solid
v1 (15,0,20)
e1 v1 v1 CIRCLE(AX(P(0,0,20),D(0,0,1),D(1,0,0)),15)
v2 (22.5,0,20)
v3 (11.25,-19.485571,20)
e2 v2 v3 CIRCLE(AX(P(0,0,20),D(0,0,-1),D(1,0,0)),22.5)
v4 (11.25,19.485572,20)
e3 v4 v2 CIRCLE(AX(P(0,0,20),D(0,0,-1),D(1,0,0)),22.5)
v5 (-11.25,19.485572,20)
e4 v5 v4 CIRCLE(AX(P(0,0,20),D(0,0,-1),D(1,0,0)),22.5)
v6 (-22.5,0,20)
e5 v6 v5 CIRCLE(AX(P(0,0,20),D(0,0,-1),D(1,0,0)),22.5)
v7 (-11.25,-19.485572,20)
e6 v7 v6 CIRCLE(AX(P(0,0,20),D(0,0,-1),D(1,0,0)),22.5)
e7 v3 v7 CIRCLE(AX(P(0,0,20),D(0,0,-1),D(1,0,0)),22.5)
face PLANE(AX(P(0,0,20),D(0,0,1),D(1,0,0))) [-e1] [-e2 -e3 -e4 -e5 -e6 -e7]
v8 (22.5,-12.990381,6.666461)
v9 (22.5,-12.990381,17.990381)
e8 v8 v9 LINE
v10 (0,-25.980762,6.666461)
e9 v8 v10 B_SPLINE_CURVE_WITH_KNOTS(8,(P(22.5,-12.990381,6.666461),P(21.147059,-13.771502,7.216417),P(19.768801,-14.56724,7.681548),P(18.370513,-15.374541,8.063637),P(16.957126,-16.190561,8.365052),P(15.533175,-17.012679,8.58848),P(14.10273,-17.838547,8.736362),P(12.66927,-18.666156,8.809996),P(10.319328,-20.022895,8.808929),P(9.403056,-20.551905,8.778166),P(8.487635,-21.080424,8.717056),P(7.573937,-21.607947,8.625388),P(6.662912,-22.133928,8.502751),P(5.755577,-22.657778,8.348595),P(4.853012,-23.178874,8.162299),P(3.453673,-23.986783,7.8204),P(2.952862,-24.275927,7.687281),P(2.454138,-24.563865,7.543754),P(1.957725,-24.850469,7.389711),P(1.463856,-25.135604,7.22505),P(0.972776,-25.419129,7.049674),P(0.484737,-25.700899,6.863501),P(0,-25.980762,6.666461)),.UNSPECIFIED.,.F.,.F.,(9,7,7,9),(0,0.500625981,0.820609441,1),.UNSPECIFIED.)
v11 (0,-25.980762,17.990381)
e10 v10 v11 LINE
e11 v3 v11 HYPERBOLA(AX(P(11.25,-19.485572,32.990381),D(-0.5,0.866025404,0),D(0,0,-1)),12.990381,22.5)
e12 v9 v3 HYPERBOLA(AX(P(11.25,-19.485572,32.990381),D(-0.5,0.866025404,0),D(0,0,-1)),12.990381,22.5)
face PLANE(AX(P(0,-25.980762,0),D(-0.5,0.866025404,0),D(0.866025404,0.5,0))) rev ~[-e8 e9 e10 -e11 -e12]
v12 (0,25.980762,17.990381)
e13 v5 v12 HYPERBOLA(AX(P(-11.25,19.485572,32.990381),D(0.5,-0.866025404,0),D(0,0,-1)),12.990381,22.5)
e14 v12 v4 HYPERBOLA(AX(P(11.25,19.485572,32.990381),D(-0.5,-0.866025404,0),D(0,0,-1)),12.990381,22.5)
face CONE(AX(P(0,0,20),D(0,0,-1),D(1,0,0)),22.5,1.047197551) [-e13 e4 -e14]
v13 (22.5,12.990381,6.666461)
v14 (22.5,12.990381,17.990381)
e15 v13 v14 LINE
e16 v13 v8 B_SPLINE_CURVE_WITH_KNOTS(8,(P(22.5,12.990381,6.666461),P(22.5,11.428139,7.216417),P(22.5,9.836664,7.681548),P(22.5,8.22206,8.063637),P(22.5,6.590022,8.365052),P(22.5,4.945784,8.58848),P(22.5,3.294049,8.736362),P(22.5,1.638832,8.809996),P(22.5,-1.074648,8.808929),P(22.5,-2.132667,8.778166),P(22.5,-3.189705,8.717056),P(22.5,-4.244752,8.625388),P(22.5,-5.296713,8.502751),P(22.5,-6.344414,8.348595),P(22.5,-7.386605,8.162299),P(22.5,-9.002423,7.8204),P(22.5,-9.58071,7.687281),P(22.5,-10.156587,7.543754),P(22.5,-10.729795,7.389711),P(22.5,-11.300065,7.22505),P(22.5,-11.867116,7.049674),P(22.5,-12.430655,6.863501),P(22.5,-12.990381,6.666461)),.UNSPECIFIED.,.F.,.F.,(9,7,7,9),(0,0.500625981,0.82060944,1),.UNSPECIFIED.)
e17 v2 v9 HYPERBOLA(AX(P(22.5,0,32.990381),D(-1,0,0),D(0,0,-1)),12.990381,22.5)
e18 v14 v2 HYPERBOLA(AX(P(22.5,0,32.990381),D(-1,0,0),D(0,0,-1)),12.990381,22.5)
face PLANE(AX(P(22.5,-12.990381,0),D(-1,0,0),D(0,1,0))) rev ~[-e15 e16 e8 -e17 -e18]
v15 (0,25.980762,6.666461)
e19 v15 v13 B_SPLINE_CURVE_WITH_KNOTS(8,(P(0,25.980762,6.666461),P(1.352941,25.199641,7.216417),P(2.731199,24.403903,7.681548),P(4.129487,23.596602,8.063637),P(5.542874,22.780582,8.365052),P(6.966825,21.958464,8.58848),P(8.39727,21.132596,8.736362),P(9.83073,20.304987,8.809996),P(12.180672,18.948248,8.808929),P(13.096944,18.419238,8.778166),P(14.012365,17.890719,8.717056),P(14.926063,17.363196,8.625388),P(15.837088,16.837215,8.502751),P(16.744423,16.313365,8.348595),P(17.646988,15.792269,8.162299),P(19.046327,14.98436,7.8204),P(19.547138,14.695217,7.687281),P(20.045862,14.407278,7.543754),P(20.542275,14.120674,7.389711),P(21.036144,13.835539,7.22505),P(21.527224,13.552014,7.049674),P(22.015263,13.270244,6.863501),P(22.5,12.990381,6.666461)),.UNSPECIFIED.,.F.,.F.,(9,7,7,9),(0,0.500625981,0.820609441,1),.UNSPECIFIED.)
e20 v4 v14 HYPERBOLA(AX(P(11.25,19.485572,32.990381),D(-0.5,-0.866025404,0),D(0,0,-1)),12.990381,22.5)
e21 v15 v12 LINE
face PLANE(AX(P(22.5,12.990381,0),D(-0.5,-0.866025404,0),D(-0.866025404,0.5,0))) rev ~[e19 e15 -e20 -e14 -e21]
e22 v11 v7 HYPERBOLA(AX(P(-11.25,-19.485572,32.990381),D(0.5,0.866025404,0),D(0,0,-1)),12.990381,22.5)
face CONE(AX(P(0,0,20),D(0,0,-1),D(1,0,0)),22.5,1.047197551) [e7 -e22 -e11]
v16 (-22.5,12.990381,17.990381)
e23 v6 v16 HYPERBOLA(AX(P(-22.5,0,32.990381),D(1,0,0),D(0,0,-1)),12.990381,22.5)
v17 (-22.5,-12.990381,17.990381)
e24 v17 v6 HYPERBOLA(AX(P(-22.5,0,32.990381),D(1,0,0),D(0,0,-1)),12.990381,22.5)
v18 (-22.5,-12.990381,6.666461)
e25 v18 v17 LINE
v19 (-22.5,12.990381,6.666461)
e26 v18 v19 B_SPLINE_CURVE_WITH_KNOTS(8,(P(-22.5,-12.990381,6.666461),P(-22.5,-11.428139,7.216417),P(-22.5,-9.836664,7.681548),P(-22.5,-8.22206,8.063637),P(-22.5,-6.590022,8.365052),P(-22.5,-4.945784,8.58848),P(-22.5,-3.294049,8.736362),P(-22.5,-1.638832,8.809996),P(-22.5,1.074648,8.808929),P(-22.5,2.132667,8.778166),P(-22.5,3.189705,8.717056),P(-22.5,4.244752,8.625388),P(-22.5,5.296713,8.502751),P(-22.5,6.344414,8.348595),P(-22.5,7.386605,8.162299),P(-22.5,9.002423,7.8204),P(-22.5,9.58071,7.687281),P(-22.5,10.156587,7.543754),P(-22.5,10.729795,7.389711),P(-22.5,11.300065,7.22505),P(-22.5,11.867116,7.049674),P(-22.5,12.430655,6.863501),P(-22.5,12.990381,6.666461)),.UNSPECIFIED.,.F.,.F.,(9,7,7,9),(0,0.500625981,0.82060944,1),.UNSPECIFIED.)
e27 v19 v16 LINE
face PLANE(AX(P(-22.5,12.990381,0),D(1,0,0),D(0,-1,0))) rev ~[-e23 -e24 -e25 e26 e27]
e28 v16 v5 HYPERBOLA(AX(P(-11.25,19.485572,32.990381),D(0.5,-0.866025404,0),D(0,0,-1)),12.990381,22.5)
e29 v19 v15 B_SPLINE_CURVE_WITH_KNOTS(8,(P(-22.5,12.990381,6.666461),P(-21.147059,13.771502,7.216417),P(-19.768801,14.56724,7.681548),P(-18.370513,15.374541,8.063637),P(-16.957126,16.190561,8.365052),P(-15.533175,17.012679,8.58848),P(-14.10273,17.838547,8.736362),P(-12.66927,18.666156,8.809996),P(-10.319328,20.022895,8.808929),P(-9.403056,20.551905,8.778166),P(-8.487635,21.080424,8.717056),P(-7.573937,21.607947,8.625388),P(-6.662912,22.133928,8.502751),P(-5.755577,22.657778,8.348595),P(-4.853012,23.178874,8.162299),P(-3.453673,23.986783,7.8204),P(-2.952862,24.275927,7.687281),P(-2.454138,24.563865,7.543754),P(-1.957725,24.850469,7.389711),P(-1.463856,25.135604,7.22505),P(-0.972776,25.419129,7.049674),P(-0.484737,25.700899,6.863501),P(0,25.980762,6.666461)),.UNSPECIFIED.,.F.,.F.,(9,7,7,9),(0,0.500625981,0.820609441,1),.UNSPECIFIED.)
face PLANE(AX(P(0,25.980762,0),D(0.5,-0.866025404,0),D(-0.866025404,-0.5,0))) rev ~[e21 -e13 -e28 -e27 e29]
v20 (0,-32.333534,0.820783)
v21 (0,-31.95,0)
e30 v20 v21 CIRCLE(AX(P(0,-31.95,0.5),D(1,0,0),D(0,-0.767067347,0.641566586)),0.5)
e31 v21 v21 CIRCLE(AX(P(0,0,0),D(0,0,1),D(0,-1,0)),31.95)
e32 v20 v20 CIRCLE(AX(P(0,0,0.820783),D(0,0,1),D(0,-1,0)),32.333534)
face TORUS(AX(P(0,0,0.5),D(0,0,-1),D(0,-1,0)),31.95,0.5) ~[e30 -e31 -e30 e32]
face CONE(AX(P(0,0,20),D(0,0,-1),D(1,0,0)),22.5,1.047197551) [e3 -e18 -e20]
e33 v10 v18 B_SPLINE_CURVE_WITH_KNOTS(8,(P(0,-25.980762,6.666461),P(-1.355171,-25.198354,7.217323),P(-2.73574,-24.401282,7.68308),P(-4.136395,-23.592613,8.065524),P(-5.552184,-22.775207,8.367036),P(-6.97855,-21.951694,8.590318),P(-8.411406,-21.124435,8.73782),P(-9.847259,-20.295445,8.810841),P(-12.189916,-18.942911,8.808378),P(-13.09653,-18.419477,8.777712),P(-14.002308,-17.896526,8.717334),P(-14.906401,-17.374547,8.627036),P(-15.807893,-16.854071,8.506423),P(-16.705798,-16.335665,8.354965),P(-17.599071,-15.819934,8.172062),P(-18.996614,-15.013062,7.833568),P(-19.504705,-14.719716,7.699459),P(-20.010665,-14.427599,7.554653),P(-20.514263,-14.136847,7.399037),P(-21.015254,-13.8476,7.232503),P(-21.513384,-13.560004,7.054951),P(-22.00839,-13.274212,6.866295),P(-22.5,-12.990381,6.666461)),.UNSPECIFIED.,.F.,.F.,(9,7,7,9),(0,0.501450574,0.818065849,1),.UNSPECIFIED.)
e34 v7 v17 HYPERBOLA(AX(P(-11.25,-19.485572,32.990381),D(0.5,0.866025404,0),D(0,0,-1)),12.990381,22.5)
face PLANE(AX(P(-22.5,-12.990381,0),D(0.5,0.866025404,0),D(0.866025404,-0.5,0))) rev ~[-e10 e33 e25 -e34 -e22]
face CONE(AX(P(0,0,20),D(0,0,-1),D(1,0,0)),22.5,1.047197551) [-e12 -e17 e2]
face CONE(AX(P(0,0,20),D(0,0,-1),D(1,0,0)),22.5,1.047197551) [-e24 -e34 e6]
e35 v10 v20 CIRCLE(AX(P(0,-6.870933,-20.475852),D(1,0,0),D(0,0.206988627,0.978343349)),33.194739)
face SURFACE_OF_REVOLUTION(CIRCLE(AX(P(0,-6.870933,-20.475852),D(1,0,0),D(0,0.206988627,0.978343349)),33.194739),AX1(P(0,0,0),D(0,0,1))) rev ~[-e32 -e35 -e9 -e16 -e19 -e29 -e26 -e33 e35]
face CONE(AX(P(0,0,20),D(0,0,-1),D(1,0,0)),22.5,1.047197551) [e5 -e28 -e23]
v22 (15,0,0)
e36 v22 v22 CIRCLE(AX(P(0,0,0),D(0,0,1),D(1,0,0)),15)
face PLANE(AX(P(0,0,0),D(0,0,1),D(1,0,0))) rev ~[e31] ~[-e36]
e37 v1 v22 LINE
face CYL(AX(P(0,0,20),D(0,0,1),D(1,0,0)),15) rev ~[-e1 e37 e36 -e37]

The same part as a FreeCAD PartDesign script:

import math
import FreeCAD as App
import Part
import Sketcher
from FreeCAD import Vector
Q = App.Units.Quantity


def add_polygon(sketch, points):
    """Adds a closed chain of lines whose ends are joined by coincident constraints."""
    first, n = sketch.GeometryCount, len(points)
    for a, b in zip(points, points[1:] + points[:1]):
        sketch.addGeometry(Part.LineSegment(App.Vector(*a, 0), App.Vector(*b, 0)), False)
    for i in range(n):
        sketch.addConstraint(Sketcher.Constraint("Coincident", first + i, 2, first + (i + 1) % n, 1))

doc = App.newDocument("Part")
body = doc.addObject("PartDesign::Body", "Body")

# Sketch on XY plane
sketch1 = doc.addObject("Sketcher::SketchObject", "Sketch")
body.addObject(sketch1)
sketch1.AttachmentSupport = (doc.XY_Plane, [""])
sketch1.MapMode = "FlatFace"
add_polygon(sketch1, [(22.5, -12.990381), (22.5, 12.990381), (0, 25.980762), (-22.5, 12.990381), (-22.5, -12.990381), (0, -25.980762)])  # lines 0-5
sketch1.addConstraint(Sketcher.Constraint("Vertical", 0))
sketch1.addConstraint(Sketcher.Constraint("Vertical", 3))
sketch1.addConstraint(Sketcher.Constraint("Symmetric", 0, 2, 3, 2, -1, 1))
sketch1.addConstraint(Sketcher.Constraint("Symmetric", 1, 2, 4, 2, -1, 1))
sketch1.addConstraint(Sketcher.Constraint("PointOnObject", 1, 2, -2))
sketch1.addConstraint(Sketcher.Constraint("Parallel", 2, 5))
sketch1.addConstraint(Sketcher.Constraint("Horizontal", 0, 2, 2, 2))
sketch1.addConstraint(Sketcher.Constraint("Angle", 1, Q("150 deg")))
sketch1.addConstraint(Sketcher.Constraint("DistanceX", 2, 2, 0, 2, 45.0))
sketch1.addConstraint(Sketcher.Constraint("DistanceY", 0, 1, 0, 2, 25.980762))
pad1 = doc.addObject("PartDesign::Pad", "Pad")
body.addObject(pad1)
pad1.Profile = sketch1
pad1.Length = 20

# Sketch on YZ plane
sketch2 = doc.addObject("Sketcher::SketchObject", "Sketch001")
body.addObject(sketch2)
sketch2.AttachmentSupport = (doc.YZ_Plane, [""])
sketch2.MapMode = "FlatFace"
sketch2.addGeometry(Part.LineSegment(Vector(0, 0, 0), Vector(0, 12, 0)), False)
sketch2.addGeometry(Part.ArcOfCircle(Part.Circle(Vector(-6.870933, -20.475852, 0), Vector(0, 0, 1), 33.194739), math.radians(78.054064), math.radians(140.091265)), False)
sketch2.addGeometry(Part.ArcOfCircle(Part.Circle(Vector(-31.95, 0.5, 0), Vector(0, 0, 1), 0.5), math.radians(140.091265), math.radians(270)), False)
sketch2.addGeometry(Part.LineSegment(Vector(-31.95, 0, 0), Vector(0, 0, 0)), False)
sketch2.addConstraint(Sketcher.Constraint("Coincident", 0, 2, 1, 1))
sketch2.addConstraint(Sketcher.Constraint("Tangent", 1, 2, 2, 1))
sketch2.addConstraint(Sketcher.Constraint("Tangent", 2, 2, 3, 1))
sketch2.addConstraint(Sketcher.Constraint("Coincident", 3, 2, 0, 1))
sketch2.addConstraint(Sketcher.Constraint("Vertical", 0))
sketch2.addConstraint(Sketcher.Constraint("Horizontal", 3))
sketch2.addConstraint(Sketcher.Constraint("Coincident", 3, 2, -1, 1))
sketch2.addConstraint(Sketcher.Constraint("Radius", 2, 0.5))
sketch2.addConstraint(Sketcher.Constraint("DistanceY", 0, 1, 0, 2, 12.0))
sketch2.addConstraint(Sketcher.Constraint("DistanceX", 3, 1, 3, 2, 31.95))
sketch2.addConstraint(Sketcher.Constraint("Radius", 1, 33.194739))
revolution = doc.addObject("PartDesign::Revolution", "Revolution")
body.addObject(revolution)
revolution.Profile = sketch2
revolution.ReferenceAxis = (sketch2, ["V_Axis"])
revolution.Angle = 360

# Sketch on XY plane
sketch3 = doc.addObject("Sketcher::SketchObject", "Sketch002")
body.addObject(sketch3)
sketch3.AttachmentSupport = (doc.XY_Plane, [""])
sketch3.MapMode = "FlatFace"
sketch3.AttachmentOffset = App.Placement(Vector(0, 0, 20), App.Rotation())
add_polygon(sketch3, [(-77.485, 77.485), (-77.485, -77.485), (77.485, -77.485), (77.485, 77.485)])  # lines 0-3
sketch3.addGeometry(Part.Circle(Vector(0, 0, 0), Vector(0, 0, 1), 22.5), False)  # 4
sketch3.addConstraint(Sketcher.Constraint("Vertical", 0))
sketch3.addConstraint(Sketcher.Constraint("Horizontal", 1))
sketch3.addConstraint(Sketcher.Constraint("Vertical", 2))
sketch3.addConstraint(Sketcher.Constraint("Horizontal", 3))
sketch3.addConstraint(Sketcher.Constraint("Coincident", 4, 3, -1, 1))
sketch3.addConstraint(Sketcher.Constraint("Symmetric", 0, 2, 2, 2, -1, 1))
sketch3.addConstraint(Sketcher.Constraint("Equal", 3, 0))
sketch3.addConstraint(Sketcher.Constraint("Diameter", 4, 45.0))
sketch3.addConstraint(Sketcher.Constraint("DistanceX", 1, 1, 1, 2, 154.97))
pocket1 = doc.addObject("PartDesign::Pocket", "Pocket")
body.addObject(pocket1)
pocket1.Profile = sketch3
pocket1.Length = 20
pocket1.TaperAngle = 60

# Sketch on XY plane
sketch4 = doc.addObject("Sketcher::SketchObject", "Sketch003")
body.addObject(sketch4)
sketch4.AttachmentSupport = (doc.XY_Plane, [""])
sketch4.MapMode = "FlatFace"
sketch4.AttachmentOffset = App.Placement(Vector(0, 0, 20), App.Rotation())
sketch4.addGeometry(Part.Circle(Vector(0, 0, 0), Vector(0, 0, 1), 15), False)
sketch4.addConstraint(Sketcher.Constraint("Coincident", 0, 3, -1, 1))
sketch4.addConstraint(Sketcher.Constraint("Diameter", 0, 30.0))
pocket2 = doc.addObject("PartDesign::Pocket", "Pocket001")
body.addObject(pocket2)
pocket2.Profile = sketch4
pocket2.Type = "ThroughAll"

doc.recompute()
